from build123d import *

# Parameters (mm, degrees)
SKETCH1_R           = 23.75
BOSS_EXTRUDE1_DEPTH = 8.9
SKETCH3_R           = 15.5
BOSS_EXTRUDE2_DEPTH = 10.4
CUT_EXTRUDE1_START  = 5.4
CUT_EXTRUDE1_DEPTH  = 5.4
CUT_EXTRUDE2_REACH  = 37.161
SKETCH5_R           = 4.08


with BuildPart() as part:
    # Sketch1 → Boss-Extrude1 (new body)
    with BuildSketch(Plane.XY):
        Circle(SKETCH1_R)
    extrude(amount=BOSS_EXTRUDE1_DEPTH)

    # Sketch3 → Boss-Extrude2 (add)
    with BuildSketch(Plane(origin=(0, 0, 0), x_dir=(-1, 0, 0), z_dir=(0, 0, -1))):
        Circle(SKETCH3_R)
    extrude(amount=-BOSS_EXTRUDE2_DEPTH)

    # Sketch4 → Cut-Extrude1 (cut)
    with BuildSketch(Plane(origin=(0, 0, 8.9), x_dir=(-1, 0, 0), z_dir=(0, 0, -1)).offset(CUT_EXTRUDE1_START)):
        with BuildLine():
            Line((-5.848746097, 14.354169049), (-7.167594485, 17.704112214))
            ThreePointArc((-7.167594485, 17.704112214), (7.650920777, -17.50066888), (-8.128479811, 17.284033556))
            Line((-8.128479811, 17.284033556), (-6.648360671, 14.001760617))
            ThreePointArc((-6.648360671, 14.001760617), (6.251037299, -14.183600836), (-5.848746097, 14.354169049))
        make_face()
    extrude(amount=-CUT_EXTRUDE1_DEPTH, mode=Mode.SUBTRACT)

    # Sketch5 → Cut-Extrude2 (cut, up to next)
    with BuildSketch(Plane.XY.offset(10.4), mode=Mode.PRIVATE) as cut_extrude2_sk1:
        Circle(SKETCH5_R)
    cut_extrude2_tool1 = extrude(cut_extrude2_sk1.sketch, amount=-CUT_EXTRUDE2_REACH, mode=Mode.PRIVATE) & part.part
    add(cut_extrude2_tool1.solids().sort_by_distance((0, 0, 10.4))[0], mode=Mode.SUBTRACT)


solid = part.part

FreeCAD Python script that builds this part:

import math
import FreeCAD as App
import Part
import Sketcher

V = App.Vector

doc = App.newDocument("Part")
params = doc.addObject("Spreadsheet::Sheet", "Params")
for row, (alias, value) in enumerate([
    ("sketch1_diameter", "47.5 mm"),
    ("pad1_length", "8.9 mm"),
    ("sketch2_diameter", "31 mm"),
    ("pad2_length", "10.4 mm"),
    ("sketch3_radius", "15.5 mm"),
    ("sketch3_radius2", "19.1 mm"),
    ("pocket1_length", "5.4 mm"),
    ("sketch4_diameter", "8.16 mm"),
], start=1):
    params.set(f"A{row}", alias)
    params.set(f"B{row}", "=" + value)
    params.setAlias(f"B{row}", alias)

body = doc.addObject("PartDesign::Body", "Body")

sketch1 = body.newObject("Sketcher::SketchObject", "Sketch")
sketch1.AttachmentSupport = (doc.getObject("XY_Plane"), [""])
sketch1.MapMode = "FlatFace"
sketch1.addGeometry(Part.Circle(V(0, 0, 0), V(0, 0, 1), 24), False)
sketch1.addConstraint([
    Sketcher.Constraint("Coincident", 0, 3, -1, 1),
    Sketcher.Constraint("Diameter", 0, 47.5),
])
sketch1.setExpression("Constraints[1]", "Params.sketch1_diameter")
pad1 = body.newObject("PartDesign::Pad", "Pad")
pad1.Profile = sketch1
pad1.setExpression("Length", "Params.pad1_length")

sketch2 = body.newObject("Sketcher::SketchObject", "Sketch001")
sketch2.AttachmentSupport = (doc.getObject("XY_Plane"), [""])
sketch2.MapMode = "FlatFace"
sketch2.addGeometry(Part.Circle(V(0, 0, 0), V(0, 0, 1), 16), False)
sketch2.addConstraint([
    Sketcher.Constraint("Coincident", 0, 3, -1, 1),
    Sketcher.Constraint("Diameter", 0, 31.0),
])
sketch2.setExpression("Constraints[1]", "Params.sketch2_diameter")
pad2 = body.newObject("PartDesign::Pad", "Pad001")
pad2.Profile = sketch2
pad2.setExpression("Length", "Params.pad2_length")

sketch3 = body.newObject("Sketcher::SketchObject", "Sketch002")
sketch3.AttachmentSupport = (doc.getObject("XY_Plane"), [""])
sketch3.MapMode = "FlatFace"
sketch3.AttachmentOffset = App.Placement(V(0, 0, 3.5), App.Rotation())
sketch3.addGeometry([
    Part.LineSegment(V(7.2, 17.7, 0), V(5.8, 14.4, 0)),
    Part.ArcOfCircle(Part.Circle(V(0, 0, 0), V(0, 0, 1), 15.5), math.radians(68), math.radians(425)),
    Part.LineSegment(V(6.6, 14, 0), V(8.1, 17.3, 0)),
    Part.ArcOfCircle(Part.Circle(V(0, 0, 0), V(0, 0, 1), 19.1), math.radians(68), math.radians(425)),
], False)
sketch3.addConstraint([
    Sketcher.Constraint("Coincident", 0, 2, 1, 1),
    Sketcher.Constraint("Coincident", 1, 2, 2, 1),
    Sketcher.Constraint("Coincident", 2, 2, 3, 2),
    Sketcher.Constraint("Coincident", 3, 1, 0, 1),
    Sketcher.Constraint("Coincident", 1, 3, -1, 1),
    Sketcher.Constraint("Coincident", 3, 3, -1, 1),
    Sketcher.Constraint("Radius", 1, 15.5),
    Sketcher.Constraint("Radius", 3, 19.1),
    Sketcher.Constraint("DistanceY", -1, 1, 0, 2, 14.354169),
    Sketcher.Constraint("DistanceX", -1, 1, 1, 2, 6.648361),
    Sketcher.Constraint("DistanceX", -1, 1, 2, 2, 8.12848),
    Sketcher.Constraint("DistanceY", 2, 2, 3, 1, 0.420079),
])
sketch3.setExpression("Constraints[6]", "Params.sketch3_radius")
sketch3.setExpression("Constraints[7]", "Params.sketch3_radius2")
pocket1 = body.newObject("PartDesign::Pocket", "Pocket")
pocket1.Profile = sketch3
pocket1.setExpression("Length", "Params.pocket1_length")
pocket1.Reversed = True

sketch4 = body.newObject("Sketcher::SketchObject", "Sketch003")
sketch4.AttachmentSupport = (doc.getObject("XY_Plane"), [""])
sketch4.MapMode = "FlatFace"
sketch4.AttachmentOffset = App.Placement(V(0, 0, 10.4), App.Rotation())
sketch4.addGeometry(Part.Circle(V(0, 0, 0), V(0, 0, 1), 4.1), False)
sketch4.addConstraint([
    Sketcher.Constraint("Coincident", 0, 3, -1, 1),
    Sketcher.Constraint("Diameter", 0, 8.16),
])
sketch4.setExpression("Constraints[1]", "Params.sketch4_diameter")
pocket2 = body.newObject("PartDesign::Pocket", "Pocket001")
pocket2.Profile = sketch4
pocket2.Type = "UpToFirst"

doc.recompute()
